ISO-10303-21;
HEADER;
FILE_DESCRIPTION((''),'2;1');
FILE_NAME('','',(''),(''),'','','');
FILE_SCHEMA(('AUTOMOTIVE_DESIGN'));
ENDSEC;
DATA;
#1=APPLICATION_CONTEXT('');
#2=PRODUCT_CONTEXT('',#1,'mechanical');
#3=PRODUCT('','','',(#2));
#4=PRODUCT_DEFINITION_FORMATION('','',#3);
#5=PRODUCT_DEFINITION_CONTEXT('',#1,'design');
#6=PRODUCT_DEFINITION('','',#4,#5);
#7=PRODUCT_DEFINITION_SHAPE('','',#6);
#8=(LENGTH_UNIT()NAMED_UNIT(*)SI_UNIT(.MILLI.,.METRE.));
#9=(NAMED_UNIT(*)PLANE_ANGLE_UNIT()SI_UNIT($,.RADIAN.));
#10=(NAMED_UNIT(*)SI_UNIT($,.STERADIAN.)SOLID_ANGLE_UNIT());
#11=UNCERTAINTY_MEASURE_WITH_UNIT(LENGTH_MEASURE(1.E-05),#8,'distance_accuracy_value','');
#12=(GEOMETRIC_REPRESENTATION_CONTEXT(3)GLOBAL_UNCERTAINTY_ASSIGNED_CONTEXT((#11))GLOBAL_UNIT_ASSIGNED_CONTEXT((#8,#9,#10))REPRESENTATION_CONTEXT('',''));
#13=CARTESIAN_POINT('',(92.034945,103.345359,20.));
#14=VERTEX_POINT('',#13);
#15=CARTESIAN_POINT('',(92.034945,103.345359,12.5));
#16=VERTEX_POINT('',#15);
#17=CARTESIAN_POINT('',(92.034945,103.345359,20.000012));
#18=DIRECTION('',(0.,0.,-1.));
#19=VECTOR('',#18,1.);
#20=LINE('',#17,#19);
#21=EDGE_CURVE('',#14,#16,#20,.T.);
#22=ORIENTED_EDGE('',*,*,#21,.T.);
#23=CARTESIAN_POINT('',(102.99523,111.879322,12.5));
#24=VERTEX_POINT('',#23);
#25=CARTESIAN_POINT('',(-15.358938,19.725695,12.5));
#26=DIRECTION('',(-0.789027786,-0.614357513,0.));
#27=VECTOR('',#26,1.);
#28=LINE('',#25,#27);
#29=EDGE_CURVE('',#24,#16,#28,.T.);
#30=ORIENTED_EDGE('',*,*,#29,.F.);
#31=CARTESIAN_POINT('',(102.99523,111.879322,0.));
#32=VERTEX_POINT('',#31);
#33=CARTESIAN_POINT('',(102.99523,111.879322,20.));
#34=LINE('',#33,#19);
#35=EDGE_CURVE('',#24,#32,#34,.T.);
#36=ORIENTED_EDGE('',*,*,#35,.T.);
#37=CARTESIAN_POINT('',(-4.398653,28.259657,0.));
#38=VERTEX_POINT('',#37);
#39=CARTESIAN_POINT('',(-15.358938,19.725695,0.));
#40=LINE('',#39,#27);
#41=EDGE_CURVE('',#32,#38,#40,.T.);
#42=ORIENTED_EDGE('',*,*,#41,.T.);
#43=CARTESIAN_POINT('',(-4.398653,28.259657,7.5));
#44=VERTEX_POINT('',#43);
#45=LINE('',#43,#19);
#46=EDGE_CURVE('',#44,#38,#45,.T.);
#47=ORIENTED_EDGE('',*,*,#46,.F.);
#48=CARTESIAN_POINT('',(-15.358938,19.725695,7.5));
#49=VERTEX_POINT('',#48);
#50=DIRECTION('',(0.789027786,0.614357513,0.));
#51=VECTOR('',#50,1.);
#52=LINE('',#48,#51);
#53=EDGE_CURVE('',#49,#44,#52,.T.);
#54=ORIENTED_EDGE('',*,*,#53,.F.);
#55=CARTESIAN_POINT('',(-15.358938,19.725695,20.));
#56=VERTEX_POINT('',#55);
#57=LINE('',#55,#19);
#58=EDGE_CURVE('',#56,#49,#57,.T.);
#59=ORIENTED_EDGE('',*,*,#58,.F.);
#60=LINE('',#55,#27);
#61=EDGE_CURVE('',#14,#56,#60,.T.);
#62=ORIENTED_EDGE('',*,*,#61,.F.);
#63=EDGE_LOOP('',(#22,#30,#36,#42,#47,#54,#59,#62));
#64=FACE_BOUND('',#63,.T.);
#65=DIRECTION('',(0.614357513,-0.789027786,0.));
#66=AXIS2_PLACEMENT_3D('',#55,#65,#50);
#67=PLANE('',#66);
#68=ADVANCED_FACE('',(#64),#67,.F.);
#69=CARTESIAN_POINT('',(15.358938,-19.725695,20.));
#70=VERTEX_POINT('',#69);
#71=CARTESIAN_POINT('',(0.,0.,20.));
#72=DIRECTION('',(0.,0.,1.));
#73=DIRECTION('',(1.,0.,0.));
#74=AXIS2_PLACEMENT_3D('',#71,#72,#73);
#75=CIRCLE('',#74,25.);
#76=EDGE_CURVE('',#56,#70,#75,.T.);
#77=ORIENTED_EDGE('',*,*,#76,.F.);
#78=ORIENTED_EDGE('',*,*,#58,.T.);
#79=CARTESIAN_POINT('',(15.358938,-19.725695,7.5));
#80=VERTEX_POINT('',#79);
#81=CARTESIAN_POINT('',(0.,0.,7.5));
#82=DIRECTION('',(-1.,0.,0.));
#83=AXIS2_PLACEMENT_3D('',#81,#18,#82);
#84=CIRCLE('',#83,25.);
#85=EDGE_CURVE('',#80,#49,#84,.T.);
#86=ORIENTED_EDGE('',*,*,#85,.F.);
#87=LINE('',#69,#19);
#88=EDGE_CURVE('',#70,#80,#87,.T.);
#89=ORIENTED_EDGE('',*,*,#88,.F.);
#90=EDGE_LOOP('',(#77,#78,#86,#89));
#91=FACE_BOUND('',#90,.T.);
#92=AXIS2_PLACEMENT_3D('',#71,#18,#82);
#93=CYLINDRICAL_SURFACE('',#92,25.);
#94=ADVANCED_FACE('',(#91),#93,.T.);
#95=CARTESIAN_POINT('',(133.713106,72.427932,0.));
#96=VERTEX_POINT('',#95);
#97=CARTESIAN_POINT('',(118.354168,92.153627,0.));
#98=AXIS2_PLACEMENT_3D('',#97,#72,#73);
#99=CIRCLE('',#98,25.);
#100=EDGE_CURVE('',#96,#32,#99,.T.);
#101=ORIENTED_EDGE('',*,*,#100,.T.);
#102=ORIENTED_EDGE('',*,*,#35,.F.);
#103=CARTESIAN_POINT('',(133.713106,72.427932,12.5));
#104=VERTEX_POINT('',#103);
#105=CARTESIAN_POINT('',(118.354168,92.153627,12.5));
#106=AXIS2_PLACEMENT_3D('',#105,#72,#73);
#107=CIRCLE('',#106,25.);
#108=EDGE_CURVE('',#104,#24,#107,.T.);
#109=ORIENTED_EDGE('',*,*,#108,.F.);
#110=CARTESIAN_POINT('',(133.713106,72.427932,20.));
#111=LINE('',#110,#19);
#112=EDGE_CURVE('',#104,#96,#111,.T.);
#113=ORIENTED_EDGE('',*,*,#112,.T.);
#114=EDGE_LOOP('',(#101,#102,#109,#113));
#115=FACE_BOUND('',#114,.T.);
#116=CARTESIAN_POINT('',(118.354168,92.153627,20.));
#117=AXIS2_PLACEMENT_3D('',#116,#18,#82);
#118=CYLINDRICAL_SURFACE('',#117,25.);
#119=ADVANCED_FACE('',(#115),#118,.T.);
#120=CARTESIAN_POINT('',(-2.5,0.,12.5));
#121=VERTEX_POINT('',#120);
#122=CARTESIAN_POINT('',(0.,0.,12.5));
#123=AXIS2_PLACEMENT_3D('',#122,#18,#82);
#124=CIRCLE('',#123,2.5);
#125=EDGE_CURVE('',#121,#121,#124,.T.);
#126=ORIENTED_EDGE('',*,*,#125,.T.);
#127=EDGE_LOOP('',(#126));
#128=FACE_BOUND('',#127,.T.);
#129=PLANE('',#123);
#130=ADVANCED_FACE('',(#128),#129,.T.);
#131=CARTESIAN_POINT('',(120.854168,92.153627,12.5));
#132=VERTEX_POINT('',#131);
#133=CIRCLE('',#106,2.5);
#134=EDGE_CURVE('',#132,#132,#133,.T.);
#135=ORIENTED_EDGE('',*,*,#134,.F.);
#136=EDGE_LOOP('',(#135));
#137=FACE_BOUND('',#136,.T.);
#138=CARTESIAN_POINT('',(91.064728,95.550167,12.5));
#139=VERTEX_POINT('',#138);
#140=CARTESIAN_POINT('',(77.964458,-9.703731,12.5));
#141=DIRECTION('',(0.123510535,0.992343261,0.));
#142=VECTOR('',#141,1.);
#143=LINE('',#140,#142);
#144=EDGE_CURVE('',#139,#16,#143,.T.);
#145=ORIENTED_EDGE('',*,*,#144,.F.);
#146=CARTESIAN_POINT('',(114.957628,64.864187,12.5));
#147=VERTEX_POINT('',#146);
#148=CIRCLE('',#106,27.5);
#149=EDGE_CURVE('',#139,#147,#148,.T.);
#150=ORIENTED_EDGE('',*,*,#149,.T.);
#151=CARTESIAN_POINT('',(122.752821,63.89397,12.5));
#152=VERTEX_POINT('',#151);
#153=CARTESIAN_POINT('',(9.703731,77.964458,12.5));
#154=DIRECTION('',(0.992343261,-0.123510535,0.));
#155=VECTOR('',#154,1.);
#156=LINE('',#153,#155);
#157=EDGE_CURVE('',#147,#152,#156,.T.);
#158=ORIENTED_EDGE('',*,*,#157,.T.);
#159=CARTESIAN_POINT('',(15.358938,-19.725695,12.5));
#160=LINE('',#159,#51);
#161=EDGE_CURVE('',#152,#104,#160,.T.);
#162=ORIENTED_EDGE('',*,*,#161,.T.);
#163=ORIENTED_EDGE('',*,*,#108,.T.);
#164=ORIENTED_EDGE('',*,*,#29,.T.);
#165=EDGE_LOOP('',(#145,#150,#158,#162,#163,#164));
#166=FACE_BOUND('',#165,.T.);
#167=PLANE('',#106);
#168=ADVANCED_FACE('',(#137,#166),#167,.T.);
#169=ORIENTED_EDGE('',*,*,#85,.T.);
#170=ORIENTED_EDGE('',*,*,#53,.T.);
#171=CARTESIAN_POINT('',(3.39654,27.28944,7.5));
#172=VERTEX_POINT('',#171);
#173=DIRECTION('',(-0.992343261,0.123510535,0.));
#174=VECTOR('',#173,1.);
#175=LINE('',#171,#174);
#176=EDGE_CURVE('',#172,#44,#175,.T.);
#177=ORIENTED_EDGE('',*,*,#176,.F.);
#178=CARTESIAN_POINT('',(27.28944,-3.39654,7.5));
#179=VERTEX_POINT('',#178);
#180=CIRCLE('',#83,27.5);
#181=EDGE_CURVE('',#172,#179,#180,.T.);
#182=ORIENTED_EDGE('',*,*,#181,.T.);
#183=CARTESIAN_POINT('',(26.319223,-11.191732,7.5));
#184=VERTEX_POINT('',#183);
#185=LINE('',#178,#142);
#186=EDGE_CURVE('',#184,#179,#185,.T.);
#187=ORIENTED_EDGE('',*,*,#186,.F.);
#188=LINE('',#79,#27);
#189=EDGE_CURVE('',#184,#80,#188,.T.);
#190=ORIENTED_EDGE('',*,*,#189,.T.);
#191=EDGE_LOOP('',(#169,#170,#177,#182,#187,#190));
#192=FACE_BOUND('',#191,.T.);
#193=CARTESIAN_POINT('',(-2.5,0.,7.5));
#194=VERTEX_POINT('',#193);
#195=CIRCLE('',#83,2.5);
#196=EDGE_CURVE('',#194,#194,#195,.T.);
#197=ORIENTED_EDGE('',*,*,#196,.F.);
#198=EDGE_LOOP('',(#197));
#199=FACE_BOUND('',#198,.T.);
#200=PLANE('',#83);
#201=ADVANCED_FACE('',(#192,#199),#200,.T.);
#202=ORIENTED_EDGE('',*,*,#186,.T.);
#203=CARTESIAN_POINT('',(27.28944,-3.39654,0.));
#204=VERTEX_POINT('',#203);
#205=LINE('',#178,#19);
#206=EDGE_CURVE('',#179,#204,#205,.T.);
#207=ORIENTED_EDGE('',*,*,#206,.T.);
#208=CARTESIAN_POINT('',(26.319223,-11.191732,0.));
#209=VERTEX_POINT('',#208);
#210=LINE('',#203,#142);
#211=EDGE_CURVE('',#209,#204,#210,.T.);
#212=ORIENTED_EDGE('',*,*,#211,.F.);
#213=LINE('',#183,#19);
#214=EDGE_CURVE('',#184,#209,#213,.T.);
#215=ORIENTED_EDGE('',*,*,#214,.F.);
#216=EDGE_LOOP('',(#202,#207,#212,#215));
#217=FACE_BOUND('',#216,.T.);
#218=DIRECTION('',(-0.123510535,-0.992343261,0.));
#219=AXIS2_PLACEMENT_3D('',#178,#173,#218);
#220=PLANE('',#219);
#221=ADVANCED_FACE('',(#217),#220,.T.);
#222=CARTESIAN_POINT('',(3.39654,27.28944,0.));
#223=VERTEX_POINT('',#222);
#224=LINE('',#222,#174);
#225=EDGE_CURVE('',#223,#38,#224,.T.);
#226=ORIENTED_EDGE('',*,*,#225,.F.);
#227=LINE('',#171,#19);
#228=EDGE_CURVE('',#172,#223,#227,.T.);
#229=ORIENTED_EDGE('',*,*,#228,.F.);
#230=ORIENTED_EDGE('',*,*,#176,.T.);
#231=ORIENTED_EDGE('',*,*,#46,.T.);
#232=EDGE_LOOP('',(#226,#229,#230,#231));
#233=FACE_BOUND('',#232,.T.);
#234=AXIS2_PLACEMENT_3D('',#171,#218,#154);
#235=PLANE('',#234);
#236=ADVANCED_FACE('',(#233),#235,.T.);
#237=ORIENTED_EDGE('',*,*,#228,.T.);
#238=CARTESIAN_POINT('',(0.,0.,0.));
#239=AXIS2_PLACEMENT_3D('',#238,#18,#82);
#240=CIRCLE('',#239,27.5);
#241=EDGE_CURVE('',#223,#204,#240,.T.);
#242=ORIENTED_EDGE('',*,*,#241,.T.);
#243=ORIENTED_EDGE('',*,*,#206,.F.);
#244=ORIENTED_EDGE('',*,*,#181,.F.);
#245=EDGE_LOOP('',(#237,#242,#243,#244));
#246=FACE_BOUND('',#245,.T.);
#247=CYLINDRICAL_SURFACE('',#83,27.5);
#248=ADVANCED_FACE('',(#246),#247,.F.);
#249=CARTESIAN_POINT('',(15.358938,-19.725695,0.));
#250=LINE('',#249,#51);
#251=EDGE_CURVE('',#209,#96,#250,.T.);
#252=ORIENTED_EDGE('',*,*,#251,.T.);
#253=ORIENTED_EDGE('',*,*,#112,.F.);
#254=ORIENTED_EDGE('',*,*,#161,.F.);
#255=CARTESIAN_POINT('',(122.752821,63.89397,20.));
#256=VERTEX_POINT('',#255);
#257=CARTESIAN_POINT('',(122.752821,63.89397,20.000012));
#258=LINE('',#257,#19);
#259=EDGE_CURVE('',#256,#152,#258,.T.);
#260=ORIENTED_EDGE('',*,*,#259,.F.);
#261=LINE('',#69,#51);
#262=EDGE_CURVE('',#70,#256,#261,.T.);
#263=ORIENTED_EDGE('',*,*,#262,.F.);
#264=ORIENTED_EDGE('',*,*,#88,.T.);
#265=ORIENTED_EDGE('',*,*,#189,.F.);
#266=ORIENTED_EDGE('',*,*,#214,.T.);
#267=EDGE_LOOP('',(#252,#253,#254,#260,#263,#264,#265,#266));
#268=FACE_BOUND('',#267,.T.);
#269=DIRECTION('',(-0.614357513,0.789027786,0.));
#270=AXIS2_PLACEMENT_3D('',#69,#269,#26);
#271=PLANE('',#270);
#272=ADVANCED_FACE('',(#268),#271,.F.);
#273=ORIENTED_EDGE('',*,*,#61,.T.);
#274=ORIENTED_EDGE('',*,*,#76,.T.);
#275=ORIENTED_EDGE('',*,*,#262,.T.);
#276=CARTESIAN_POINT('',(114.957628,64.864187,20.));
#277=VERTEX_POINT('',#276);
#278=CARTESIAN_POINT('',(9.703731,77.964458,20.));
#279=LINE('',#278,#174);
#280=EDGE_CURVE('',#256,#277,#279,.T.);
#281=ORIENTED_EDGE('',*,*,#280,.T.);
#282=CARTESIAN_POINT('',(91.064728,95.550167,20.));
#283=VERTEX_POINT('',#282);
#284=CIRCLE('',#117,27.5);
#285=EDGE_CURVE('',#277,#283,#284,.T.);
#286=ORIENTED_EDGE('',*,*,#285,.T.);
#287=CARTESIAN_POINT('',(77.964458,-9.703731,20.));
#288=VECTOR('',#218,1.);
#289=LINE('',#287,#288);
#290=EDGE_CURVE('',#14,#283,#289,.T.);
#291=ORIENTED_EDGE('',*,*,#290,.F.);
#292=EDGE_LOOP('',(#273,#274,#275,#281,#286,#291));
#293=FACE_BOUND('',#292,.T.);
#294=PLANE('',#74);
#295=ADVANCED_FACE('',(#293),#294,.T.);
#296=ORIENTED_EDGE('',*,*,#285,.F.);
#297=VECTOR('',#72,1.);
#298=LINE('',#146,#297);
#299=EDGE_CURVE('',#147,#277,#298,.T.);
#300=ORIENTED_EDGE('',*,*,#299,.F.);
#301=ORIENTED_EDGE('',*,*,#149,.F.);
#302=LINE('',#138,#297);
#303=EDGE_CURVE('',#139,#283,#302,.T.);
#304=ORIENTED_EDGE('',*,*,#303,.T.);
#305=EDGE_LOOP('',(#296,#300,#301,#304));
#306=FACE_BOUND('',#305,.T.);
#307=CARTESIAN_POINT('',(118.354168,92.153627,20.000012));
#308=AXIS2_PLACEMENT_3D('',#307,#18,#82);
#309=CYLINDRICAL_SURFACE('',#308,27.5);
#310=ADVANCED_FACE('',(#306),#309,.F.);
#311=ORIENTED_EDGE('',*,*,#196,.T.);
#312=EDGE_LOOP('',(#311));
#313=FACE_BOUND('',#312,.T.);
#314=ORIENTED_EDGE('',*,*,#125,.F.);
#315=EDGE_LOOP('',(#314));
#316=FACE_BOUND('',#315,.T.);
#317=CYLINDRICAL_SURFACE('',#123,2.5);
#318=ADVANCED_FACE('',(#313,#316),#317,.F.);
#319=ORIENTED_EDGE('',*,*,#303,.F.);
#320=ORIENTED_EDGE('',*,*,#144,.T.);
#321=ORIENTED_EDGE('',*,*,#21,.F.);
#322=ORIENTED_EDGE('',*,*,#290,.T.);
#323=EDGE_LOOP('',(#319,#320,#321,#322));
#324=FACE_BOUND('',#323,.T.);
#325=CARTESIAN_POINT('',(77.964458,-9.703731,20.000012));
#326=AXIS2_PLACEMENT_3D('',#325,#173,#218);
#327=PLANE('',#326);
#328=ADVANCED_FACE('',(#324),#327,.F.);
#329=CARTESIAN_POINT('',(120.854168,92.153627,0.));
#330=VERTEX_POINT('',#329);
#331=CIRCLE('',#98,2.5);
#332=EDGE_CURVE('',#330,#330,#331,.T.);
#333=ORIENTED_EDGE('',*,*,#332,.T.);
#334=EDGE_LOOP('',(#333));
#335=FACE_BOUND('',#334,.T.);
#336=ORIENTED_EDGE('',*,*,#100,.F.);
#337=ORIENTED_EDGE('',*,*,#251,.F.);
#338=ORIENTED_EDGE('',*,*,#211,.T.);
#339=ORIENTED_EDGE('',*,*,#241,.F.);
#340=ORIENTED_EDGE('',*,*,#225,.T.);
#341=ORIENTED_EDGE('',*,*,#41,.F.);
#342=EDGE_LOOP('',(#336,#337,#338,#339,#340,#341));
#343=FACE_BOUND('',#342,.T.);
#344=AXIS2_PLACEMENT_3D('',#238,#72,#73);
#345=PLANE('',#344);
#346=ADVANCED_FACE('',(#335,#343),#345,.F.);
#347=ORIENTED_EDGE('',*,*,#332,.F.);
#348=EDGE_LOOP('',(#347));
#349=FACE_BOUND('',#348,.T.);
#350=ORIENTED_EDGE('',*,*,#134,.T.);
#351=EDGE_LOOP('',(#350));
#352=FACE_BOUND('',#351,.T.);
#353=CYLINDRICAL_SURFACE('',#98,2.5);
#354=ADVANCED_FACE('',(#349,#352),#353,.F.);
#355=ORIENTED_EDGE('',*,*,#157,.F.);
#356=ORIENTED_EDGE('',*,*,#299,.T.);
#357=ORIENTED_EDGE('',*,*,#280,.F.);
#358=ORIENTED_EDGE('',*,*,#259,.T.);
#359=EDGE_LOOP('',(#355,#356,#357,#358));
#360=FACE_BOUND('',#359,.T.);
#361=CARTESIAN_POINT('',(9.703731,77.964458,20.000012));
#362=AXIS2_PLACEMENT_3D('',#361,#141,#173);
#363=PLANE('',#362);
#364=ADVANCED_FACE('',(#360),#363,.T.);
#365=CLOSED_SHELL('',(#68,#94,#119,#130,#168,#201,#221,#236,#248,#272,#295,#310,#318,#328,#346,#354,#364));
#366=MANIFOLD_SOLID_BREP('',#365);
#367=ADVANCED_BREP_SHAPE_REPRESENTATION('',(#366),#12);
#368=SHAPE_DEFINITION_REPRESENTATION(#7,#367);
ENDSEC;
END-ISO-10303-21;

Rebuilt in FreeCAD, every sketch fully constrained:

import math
import FreeCAD as App
import Part
import Sketcher

doc = App.newDocument("Part")
body = doc.addObject("PartDesign::Body", "Body")

# Sketch on XY plane
sketch1 = body.newObject("Sketcher::SketchObject", "Sketch")
sketch1.AttachmentSupport = (doc.getObject("XY_Plane"), [""])
sketch1.MapMode = "FlatFace"
sketch1.addGeometry([
    Part.LineSegment(App.Vector(103, 112, 0), App.Vector(-15, 20, 0)),
    Part.ArcOfCircle(Part.Circle(App.Vector(0, 0, 0), App.Vector(0, 0, 1), 25), math.radians(128), math.radians(308)),
    Part.LineSegment(App.Vector(15, -20, 0), App.Vector(134, 72, 0)),
    Part.ArcOfCircle(Part.Circle(App.Vector(118, 92, 0), App.Vector(0, 0, 1), 25), math.radians(-52), math.radians(128)),
], False)
sketch1.addConstraint([
    Sketcher.Constraint("Tangent", 0, 2, 1, 1),
    Sketcher.Constraint("Tangent", 1, 2, 2, 1),
    Sketcher.Constraint("Tangent", 2, 2, 3, 1),
    Sketcher.Constraint("Tangent", 3, 2, 0, 1),
    Sketcher.Constraint("Coincident", 1, 3, -1, 1),
    Sketcher.Constraint("Equal", 1, 3),
    Sketcher.Constraint("Radius", 1, 25.0),
    Sketcher.Constraint("Distance", 0, 150.0),
    Sketcher.Constraint("DistanceX", -1, 1, 3, 2, 102.99523),
])
pad1 = body.newObject("PartDesign::Pad", "Pad")
pad1.Profile = sketch1
pad1.Length = 20

# Sketch on XY plane
sketch2 = body.newObject("Sketcher::SketchObject", "Sketch001")
sketch2.AttachmentSupport = (doc.getObject("XY_Plane"), [""])
sketch2.MapMode = "FlatFace"
sketch2.addGeometry([
    Part.ArcOfCircle(Part.Circle(App.Vector(0, 0, 0), App.Vector(0, 0, 1), 25), math.radians(-52), math.radians(128)),
    Part.ArcOfCircle(Part.Circle(App.Vector(0, 0, 0), App.Vector(0, 0, 1), 25), math.radians(180), math.radians(308)),
    Part.ArcOfCircle(Part.Circle(App.Vector(0, 0, 0), App.Vector(0, 0, 1), 25), math.radians(128), math.radians(180)),
], False)
sketch2.addConstraint([
    Sketcher.Constraint("Tangent", 0, 1, 1, 2),
    Sketcher.Constraint("Tangent", 1, 1, 2, 2),
    Sketcher.Constraint("Tangent", 2, 1, 0, 2),
    Sketcher.Constraint("Coincident", 0, 3, -1, 1),
    Sketcher.Constraint("PointOnObject", 1, 1, -1),
    Sketcher.Constraint("Radius", 0, 25.0),
    Sketcher.Constraint("DistanceY", 0, 1, 2, 1, 39.451389),
    Sketcher.Constraint("DistanceX", -1, 1, 0, 1, 15.358938),
])
pocket1 = body.newObject("PartDesign::Pocket", "Pocket")
pocket1.Profile = sketch2
pocket1.Length = 7.5
pocket1.Reversed = True

# Sketch on XY plane
sketch3 = body.newObject("Sketcher::SketchObject", "Sketch002")
sketch3.AttachmentSupport = (doc.getObject("XY_Plane"), [""])
sketch3.MapMode = "FlatFace"
sketch3.AttachmentOffset = App.Placement(App.Vector(0, 0, 7.5), App.Rotation())
sketch3.addGeometry(Part.Circle(App.Vector(0, 0, 0), App.Vector(0, 0, 1), 2.5), False)
sketch3.addConstraint([
    Sketcher.Constraint("Coincident", 0, 3, -1, 1),
    Sketcher.Constraint("Diameter", 0, 5.0),
])
pocket2 = body.newObject("PartDesign::Pocket", "Pocket001")
pocket2.Profile = sketch3
pocket2.Length = 5
pocket2.Reversed = True

# Sketch on XY plane
sketch4 = body.newObject("Sketcher::SketchObject", "Sketch003")
sketch4.AttachmentSupport = (doc.getObject("XY_Plane"), [""])
sketch4.MapMode = "FlatFace"
sketch4.AttachmentOffset = App.Placement(App.Vector(0, 0, 12.5), App.Rotation())
sketch4.addGeometry(Part.Circle(App.Vector(118, 92, 0), App.Vector(0, 0, 1), 25), False)
sketch4.addConstraint([
    Sketcher.Constraint("Diameter", 0, 50.0),
    Sketcher.Constraint("DistanceX", -1, 1, 0, 3, 118.354168),
    Sketcher.Constraint("DistanceY", -1, 1, 0, 3, 92.153627),
])
pocket3 = body.newObject("PartDesign::Pocket", "Pocket002")
pocket3.Profile = sketch4
pocket3.Length = 7.5
pocket3.Reversed = True

# Sketch on XY plane
sketch5 = body.newObject("Sketcher::SketchObject", "Sketch004")
sketch5.AttachmentSupport = (doc.getObject("XY_Plane"), [""])
sketch5.MapMode = "FlatFace"
sketch5.addGeometry([
    Part.ArcOfCircle(Part.Circle(App.Vector(0, 0, 0), App.Vector(0, 0, 1), 28), math.radians(38), math.radians(83)),  # 0
    Part.ArcOfCircle(Part.Circle(App.Vector(0, 0, 0), App.Vector(0, 0, 1), 27), math.radians(-7), math.radians(38)),  # 1
    Part.LineSegment(App.Vector(27, -3, 0), App.Vector(26, -11, 0)),  # 2
    Part.LineSegment(App.Vector(26, -11, 0), App.Vector(15, -20, 0)),  # 3
    Part.ArcOfCircle(Part.Circle(App.Vector(0, 0, 0), App.Vector(0, 0, 1), 25), math.radians(-52), math.radians(38)),  # 4
    Part.ArcOfCircle(Part.Circle(App.Vector(0, 0, 0), App.Vector(0, 0, 1), 25), math.radians(38), math.radians(128)),  # 5
    Part.LineSegment(App.Vector(-15, 20, 0), App.Vector(-4, 28, 0)),  # 6
    Part.LineSegment(App.Vector(-4, 28, 0), App.Vector(3, 27, 0)),  # 7
], False)
sketch5.addConstraint([
    Sketcher.Constraint("Tangent", 0, 1, 1, 2),
    Sketcher.Constraint("Tangent", 1, 1, 2, 1),
    Sketcher.Constraint("Coincident", 2, 2, 3, 1),
    Sketcher.Constraint("Tangent", 3, 2, 4, 1),
    Sketcher.Constraint("Tangent", 4, 2, 5, 1),
    Sketcher.Constraint("Tangent", 5, 2, 6, 1),
    Sketcher.Constraint("Coincident", 6, 2, 7, 1),
    Sketcher.Constraint("Tangent", 7, 2, 0, 2),
    Sketcher.Constraint("Coincident", 0, 3, -1, 1),
    Sketcher.Constraint("Coincident", 4, 3, -1, 1),
    Sketcher.Constraint("Equal", 0, 1),
    Sketcher.Constraint("Equal", 4, 5),
    Sketcher.Constraint("Parallel", 3, 6),
    Sketcher.Constraint("Perpendicular", 2, 7),
    Sketcher.Constraint("Equal", 3, 6),
    Sketcher.Constraint("Radius", 4, 25.0),
    Sketcher.Constraint("Radius", 0, 27.5),
    Sketcher.Constraint("DistanceX", 3, 2, 1, 1, 11.930502),
    Sketcher.Constraint("DistanceY", 4, 2, 7, 2, 11.930502),
    Sketcher.Constraint("DistanceY", -1, 1, 0, 1, 16.894832),
])
pocket4 = body.newObject("PartDesign::Pocket", "Pocket003")
pocket4.Profile = sketch5
pocket4.Length = 7.5
pocket4.Reversed = True

# Sketch on XY plane
sketch6 = body.newObject("Sketcher::SketchObject", "Sketch005")
sketch6.AttachmentSupport = (doc.getObject("XY_Plane"), [""])
sketch6.MapMode = "FlatFace"
sketch6.AttachmentOffset = App.Placement(App.Vector(0, 0, 20), App.Rotation())
sketch6.addGeometry([
    Part.ArcOfCircle(Part.Circle(App.Vector(118, 92, 0), App.Vector(0, 0, 1), 28), math.radians(-142), math.radians(-97)),  # 0
    Part.LineSegment(App.Vector(115, 65, 0), App.Vector(123, 64, 0)),  # 1
    Part.LineSegment(App.Vector(123, 64, 0), App.Vector(134, 72, 0)),  # 2
    Part.ArcOfCircle(Part.Circle(App.Vector(118, 92, 0), App.Vector(0, 0, 1), 25), math.radians(-142), math.radians(-52)),  # 3
    Part.ArcOfCircle(Part.Circle(App.Vector(118, 92, 0), App.Vector(0, 0, 1), 25), math.radians(128), math.radians(218)),  # 4
    Part.LineSegment(App.Vector(103, 112, 0), App.Vector(92, 103, 0)),  # 5
    Part.LineSegment(App.Vector(92, 103, 0), App.Vector(91, 96, 0)),  # 6
    Part.ArcOfCircle(Part.Circle(App.Vector(118, 92, 0), App.Vector(0, 0, 1), 28), math.radians(173), math.radians(218)),  # 7
], False)
sketch6.addConstraint([
    Sketcher.Constraint("Tangent", 0, 2, 1, 1),
    Sketcher.Constraint("Coincident", 1, 2, 2, 1),
    Sketcher.Constraint("Tangent", 2, 2, 3, 2),
    Sketcher.Constraint("Tangent", 3, 1, 4, 2),
    Sketcher.Constraint("Tangent", 4, 1, 5, 1),
    Sketcher.Constraint("Coincident", 5, 2, 6, 1),
    Sketcher.Constraint("Tangent", 6, 2, 7, 1),
    Sketcher.Constraint("Tangent", 7, 2, 0, 1),
    Sketcher.Constraint("Coincident", 3, 3, 0, 3),
    Sketcher.Constraint("Equal", 3, 4),
    Sketcher.Constraint("Equal", 0, 7),
    Sketcher.Constraint("Parallel", 2, 5),
    Sketcher.Constraint("Perpendicular", 1, 6),
    Sketcher.Constraint("Equal", 2, 5),
    Sketcher.Constraint("Radius", 3, 25.0),
    Sketcher.Constraint("Radius", 0, 27.5),
    Sketcher.Constraint("DistanceY", 0, 2, 3, 1, 11.930502),
    Sketcher.Constraint("DistanceX", 6, 2, 4, 1, 11.930502),
    Sketcher.Constraint("DistanceX", -1, 1, 0, 2, 114.957628),
    Sketcher.Constraint("DistanceY", -1, 1, 1, 2, 63.89397),
    Sketcher.Constraint("DistanceX", 7, 2, 3, 1, 1.972569),
])
pocket5 = body.newObject("PartDesign::Pocket", "Pocket004")
pocket5.Profile = sketch6
pocket5.Type = "TwoLengths"
pocket5.Length = 187.213291
pocket5.Length2 = 7.5
pocket5.Reversed = True

# Sketch on XY plane
sketch7 = body.newObject("Sketcher::SketchObject", "Sketch006")
sketch7.AttachmentSupport = (doc.getObject("XY_Plane"), [""])
sketch7.MapMode = "FlatFace"
sketch7.AttachmentOffset = App.Placement(App.Vector(0, 0, 12.5), App.Rotation())
sketch7.addGeometry(Part.Circle(App.Vector(118.4, 92.2, 0), App.Vector(0, 0, 1), 2.5), False)
sketch7.addConstraint([
    Sketcher.Constraint("Diameter", 0, 5.0),
    Sketcher.Constraint("DistanceX", -1, 1, 0, 3, 118.354168),
    Sketcher.Constraint("DistanceY", -1, 1, 0, 3, 92.153627),
])
pocket6 = body.newObject("PartDesign::Pocket", "Pocket005")
pocket6.Profile = sketch7
pocket6.Type = "ThroughAll"

doc.recompute()
